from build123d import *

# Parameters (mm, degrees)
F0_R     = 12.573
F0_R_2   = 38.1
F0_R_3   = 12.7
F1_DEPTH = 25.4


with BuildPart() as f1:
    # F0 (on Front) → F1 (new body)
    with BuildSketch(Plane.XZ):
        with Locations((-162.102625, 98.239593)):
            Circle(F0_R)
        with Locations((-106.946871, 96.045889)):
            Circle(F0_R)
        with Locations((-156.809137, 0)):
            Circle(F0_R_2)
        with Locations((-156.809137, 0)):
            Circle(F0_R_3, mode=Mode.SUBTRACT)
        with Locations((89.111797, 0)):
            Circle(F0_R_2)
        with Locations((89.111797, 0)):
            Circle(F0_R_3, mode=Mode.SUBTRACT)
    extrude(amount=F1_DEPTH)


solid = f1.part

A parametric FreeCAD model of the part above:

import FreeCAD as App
import Part
import Sketcher

V = App.Vector
Q = App.Units.Quantity

doc = App.newDocument("Part")
body = doc.addObject("PartDesign::Body", "Body")
body.AllowCompound = True

sketch1 = body.newObject("Sketcher::SketchObject", "Sketch")
sketch1.AttachmentSupport = (doc.getObject("XZ_Plane"), [""])
sketch1.MapMode = "FlatFace"
sketch1.addGeometry(Part.Circle(V(-162, 98, 0), V(0, 0, 1), 13), False)
sketch1.addGeometry(Part.Circle(V(-107, 96, 0), V(0, 0, 1), 13), False)
sketch1.addGeometry(Part.Circle(V(-157, 0, 0), V(0, 0, 1), 38), False)
sketch1.addGeometry(Part.Circle(V(-157, 0, 0), V(0, 0, 1), 13), False)
sketch1.addGeometry(Part.Circle(V(89, 0, 0), V(0, 0, 1), 38), False)
sketch1.addGeometry(Part.Circle(V(89, 0, 0), V(0, 0, 1), 13), False)
sketch1.addConstraint(Sketcher.Constraint("Coincident", 3, 3, 2, 3))
sketch1.addConstraint(Sketcher.Constraint("Coincident", 5, 3, 4, 3))
sketch1.addConstraint(Sketcher.Constraint("Equal", 0, 1))
sketch1.addConstraint(Sketcher.Constraint("Equal", 2, 4))
sketch1.addConstraint(Sketcher.Constraint("Equal", 3, 5))
sketch1.addConstraint(Sketcher.Constraint("PointOnObject", 2, 3, -1))
sketch1.addConstraint(Sketcher.Constraint("PointOnObject", 4, 3, -1))
sketch1.addConstraint(Sketcher.Constraint("Diameter", 2, Q("3 in")))
sketch1.addConstraint(Sketcher.Constraint("Diameter", 3, Q("1 in")))
sketch1.addConstraint(Sketcher.Constraint("Diameter", 0, Q("0.99 in")))
sketch1.addConstraint(Sketcher.Constraint("DistanceX", 1, 3, -1, 1, Q("106.946871 mm")))
sketch1.addConstraint(Sketcher.Constraint("DistanceY", -1, 1, 1, 3, Q("96.045889 mm")))
sketch1.addConstraint(Sketcher.Constraint("DistanceX", 1, 3, 4, 3, Q("196.058668 mm")))
sketch1.addConstraint(Sketcher.Constraint("DistanceX", 0, 3, 4, 3, Q("251.214422 mm")))
sketch1.addConstraint(Sketcher.Constraint("DistanceY", -1, 1, 0, 3, Q("98.239593 mm")))
sketch1.addConstraint(Sketcher.Constraint("DistanceX", 2, 3, -1, 1, Q("156.809137 mm")))
pad1 = body.newObject("PartDesign::Pad", "Pad")
pad1.Profile = sketch1
pad1.Length = Q("1 in")

doc.recompute()
